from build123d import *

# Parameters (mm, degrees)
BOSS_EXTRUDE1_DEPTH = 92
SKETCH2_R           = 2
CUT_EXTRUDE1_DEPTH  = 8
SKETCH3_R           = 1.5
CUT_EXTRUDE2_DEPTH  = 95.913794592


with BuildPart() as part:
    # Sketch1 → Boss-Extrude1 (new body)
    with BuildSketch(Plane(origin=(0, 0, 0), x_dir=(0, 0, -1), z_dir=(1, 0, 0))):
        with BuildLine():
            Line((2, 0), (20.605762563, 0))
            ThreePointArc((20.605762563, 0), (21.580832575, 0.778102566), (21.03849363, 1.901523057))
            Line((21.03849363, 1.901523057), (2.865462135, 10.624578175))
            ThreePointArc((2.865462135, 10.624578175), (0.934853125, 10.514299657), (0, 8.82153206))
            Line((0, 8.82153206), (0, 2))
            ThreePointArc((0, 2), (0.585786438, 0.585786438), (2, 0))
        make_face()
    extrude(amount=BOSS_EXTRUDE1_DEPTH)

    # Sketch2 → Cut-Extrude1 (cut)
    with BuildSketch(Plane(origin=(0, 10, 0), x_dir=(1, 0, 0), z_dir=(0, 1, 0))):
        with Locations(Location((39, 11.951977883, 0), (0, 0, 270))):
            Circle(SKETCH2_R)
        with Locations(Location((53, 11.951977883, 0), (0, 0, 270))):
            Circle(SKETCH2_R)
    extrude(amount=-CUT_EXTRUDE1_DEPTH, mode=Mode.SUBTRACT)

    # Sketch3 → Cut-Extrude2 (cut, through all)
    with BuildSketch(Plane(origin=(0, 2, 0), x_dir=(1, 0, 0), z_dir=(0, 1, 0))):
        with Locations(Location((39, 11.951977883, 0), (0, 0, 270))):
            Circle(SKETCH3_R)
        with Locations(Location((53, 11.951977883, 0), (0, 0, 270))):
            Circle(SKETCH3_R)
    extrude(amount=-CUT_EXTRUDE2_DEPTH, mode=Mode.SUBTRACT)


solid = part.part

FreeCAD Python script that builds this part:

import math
import FreeCAD as App
import Part
import Sketcher

V = App.Vector

doc = App.newDocument("Part")
params = doc.addObject("Spreadsheet::Sheet", "Params")
for row, (alias, value) in enumerate([
    ("sketch1_radius", "1 mm"),
    ("sketch1_radius2", "2 mm"),
    ("pad1_length", "92 mm"),
    ("sketch2_diameter", "4 mm"),
    ("pocket1_length", "8 mm"),
    ("sketch3_diameter", "3 mm"),
], start=1):
    params.set(f"A{row}", alias)
    params.set(f"B{row}", "=" + value)
    params.setAlias(f"B{row}", alias)

body = doc.addObject("PartDesign::Body", "Body")

# Sketch on YZ plane
sketch1 = doc.addObject("Sketcher::SketchObject", "Sketch")
body.addObject(sketch1)
sketch1.AttachmentSupport = (doc.YZ_Plane, [""])
sketch1.MapMode = "FlatFace"
sketch1.addGeometry(Part.LineSegment(V(0, -2, 0), V(0, -20.605763, 0)), False)
sketch1.addGeometry(Part.ArcOfCircle(Part.Circle(V(1, -20.605763, 0), V(0, 0, 1), 1), math.radians(180), math.radians(334.358994)), False)
sketch1.addGeometry(Part.LineSegment(V(1.901523, -21.038494, 0), V(10.624578, -2.865462, 0)), False)
sketch1.addGeometry(Part.ArcOfCircle(Part.Circle(V(8.821532, -2, 0), V(0, 0, 1), 2), math.radians(-25.641006), math.radians(90)), False)
sketch1.addGeometry(Part.LineSegment(V(8.821532, 0, 0), V(2, 0, 0)), False)
sketch1.addGeometry(Part.ArcOfCircle(Part.Circle(V(2, -2, 0), V(0, 0, 1), 2), math.radians(90), math.radians(180)), False)
sketch1.addConstraint(Sketcher.Constraint("Tangent", 0, 2, 1, 1))
sketch1.addConstraint(Sketcher.Constraint("Tangent", 1, 2, 2, 1))
sketch1.addConstraint(Sketcher.Constraint("Tangent", 2, 2, 3, 1))
sketch1.addConstraint(Sketcher.Constraint("Tangent", 3, 2, 4, 1))
sketch1.addConstraint(Sketcher.Constraint("Tangent", 4, 2, 5, 1))
sketch1.addConstraint(Sketcher.Constraint("Tangent", 5, 2, 0, 1))
sketch1.addConstraint(Sketcher.Constraint("Vertical", 0))
sketch1.addConstraint(Sketcher.Constraint("Horizontal", 4))
sketch1.addConstraint(Sketcher.Constraint("Equal", 3, 5))
sketch1.addConstraint(Sketcher.Constraint("PointOnObject", 0, 2, -2))
sketch1.addConstraint(Sketcher.Constraint("PointOnObject", 3, 2, -1))
sketch1.addConstraint(Sketcher.Constraint("Radius", 1, 1.0))
sketch1.addConstraint(Sketcher.Constraint("Radius", 3, 2.0))
sketch1.addConstraint(Sketcher.Constraint("DistanceY", 1, 3, 2, 2, 17.7403))
sketch1.addConstraint(Sketcher.Constraint("DistanceX", 4, 2, 4, 1, 6.821532))
sketch1.setExpression("Constraints[11]", "Params.sketch1_radius")
sketch1.setExpression("Constraints[12]", "Params.sketch1_radius2")
pad1 = doc.addObject("PartDesign::Pad", "Pad")
body.addObject(pad1)
pad1.Profile = sketch1
pad1.setExpression("Length", "Params.pad1_length")

# Sketch on XZ plane
sketch2 = doc.addObject("Sketcher::SketchObject", "Sketch001")
body.addObject(sketch2)
sketch2.AttachmentSupport = (doc.XZ_Plane, [""])
sketch2.MapMode = "FlatFace"
sketch2.AttachmentOffset = App.Placement(V(0, 0, -10), App.Rotation())
sketch2.addGeometry(Part.Circle(V(39, -11.951978, 0), V(0, 0, 1), 2), False)
sketch2.addGeometry(Part.Circle(V(53, -11.951978, 0), V(0, 0, 1), 2), False)
sketch2.addConstraint(Sketcher.Constraint("Equal", 0, 1))
sketch2.addConstraint(Sketcher.Constraint("Horizontal", 0, 3, 1, 3))
sketch2.addConstraint(Sketcher.Constraint("Diameter", 0, 4.0))
sketch2.addConstraint(Sketcher.Constraint("DistanceX", -1, 1, 0, 3, 39.0))
sketch2.addConstraint(Sketcher.Constraint("DistanceX", -1, 1, 1, 3, 53.0))
sketch2.addConstraint(Sketcher.Constraint("DistanceY", 0, 3, -1, 1, 11.951978))
sketch2.setExpression("Constraints[2]", "Params.sketch2_diameter")
pocket1 = doc.addObject("PartDesign::Pocket", "Pocket")
body.addObject(pocket1)
pocket1.Profile = sketch2
pocket1.setExpression("Length", "Params.pocket1_length")
pocket1.Reversed = True

# Sketch on XZ plane
sketch3 = doc.addObject("Sketcher::SketchObject", "Sketch002")
body.addObject(sketch3)
sketch3.AttachmentSupport = (doc.XZ_Plane, [""])
sketch3.MapMode = "FlatFace"
sketch3.AttachmentOffset = App.Placement(V(0, 0, -2), App.Rotation())
sketch3.addGeometry(Part.Circle(V(39, -11.951978, 0), V(0, 0, 1), 1.5), False)
sketch3.addGeometry(Part.Circle(V(53, -11.951978, 0), V(0, 0, 1), 1.5), False)
sketch3.addConstraint(Sketcher.Constraint("Equal", 0, 1))
sketch3.addConstraint(Sketcher.Constraint("Horizontal", 0, 3, 1, 3))
sketch3.addConstraint(Sketcher.Constraint("Diameter", 0, 3.0))
sketch3.addConstraint(Sketcher.Constraint("DistanceX", -1, 1, 0, 3, 39.0))
sketch3.addConstraint(Sketcher.Constraint("DistanceX", -1, 1, 1, 3, 53.0))
sketch3.addConstraint(Sketcher.Constraint("DistanceY", 0, 3, -1, 1, 11.951978))
sketch3.setExpression("Constraints[2]", "Params.sketch3_diameter")
pocket2 = doc.addObject("PartDesign::Pocket", "Pocket001")
body.addObject(pocket2)
pocket2.Profile = sketch3
pocket2.Type = "ThroughAll"
pocket2.Reversed = True

doc.recompute()
